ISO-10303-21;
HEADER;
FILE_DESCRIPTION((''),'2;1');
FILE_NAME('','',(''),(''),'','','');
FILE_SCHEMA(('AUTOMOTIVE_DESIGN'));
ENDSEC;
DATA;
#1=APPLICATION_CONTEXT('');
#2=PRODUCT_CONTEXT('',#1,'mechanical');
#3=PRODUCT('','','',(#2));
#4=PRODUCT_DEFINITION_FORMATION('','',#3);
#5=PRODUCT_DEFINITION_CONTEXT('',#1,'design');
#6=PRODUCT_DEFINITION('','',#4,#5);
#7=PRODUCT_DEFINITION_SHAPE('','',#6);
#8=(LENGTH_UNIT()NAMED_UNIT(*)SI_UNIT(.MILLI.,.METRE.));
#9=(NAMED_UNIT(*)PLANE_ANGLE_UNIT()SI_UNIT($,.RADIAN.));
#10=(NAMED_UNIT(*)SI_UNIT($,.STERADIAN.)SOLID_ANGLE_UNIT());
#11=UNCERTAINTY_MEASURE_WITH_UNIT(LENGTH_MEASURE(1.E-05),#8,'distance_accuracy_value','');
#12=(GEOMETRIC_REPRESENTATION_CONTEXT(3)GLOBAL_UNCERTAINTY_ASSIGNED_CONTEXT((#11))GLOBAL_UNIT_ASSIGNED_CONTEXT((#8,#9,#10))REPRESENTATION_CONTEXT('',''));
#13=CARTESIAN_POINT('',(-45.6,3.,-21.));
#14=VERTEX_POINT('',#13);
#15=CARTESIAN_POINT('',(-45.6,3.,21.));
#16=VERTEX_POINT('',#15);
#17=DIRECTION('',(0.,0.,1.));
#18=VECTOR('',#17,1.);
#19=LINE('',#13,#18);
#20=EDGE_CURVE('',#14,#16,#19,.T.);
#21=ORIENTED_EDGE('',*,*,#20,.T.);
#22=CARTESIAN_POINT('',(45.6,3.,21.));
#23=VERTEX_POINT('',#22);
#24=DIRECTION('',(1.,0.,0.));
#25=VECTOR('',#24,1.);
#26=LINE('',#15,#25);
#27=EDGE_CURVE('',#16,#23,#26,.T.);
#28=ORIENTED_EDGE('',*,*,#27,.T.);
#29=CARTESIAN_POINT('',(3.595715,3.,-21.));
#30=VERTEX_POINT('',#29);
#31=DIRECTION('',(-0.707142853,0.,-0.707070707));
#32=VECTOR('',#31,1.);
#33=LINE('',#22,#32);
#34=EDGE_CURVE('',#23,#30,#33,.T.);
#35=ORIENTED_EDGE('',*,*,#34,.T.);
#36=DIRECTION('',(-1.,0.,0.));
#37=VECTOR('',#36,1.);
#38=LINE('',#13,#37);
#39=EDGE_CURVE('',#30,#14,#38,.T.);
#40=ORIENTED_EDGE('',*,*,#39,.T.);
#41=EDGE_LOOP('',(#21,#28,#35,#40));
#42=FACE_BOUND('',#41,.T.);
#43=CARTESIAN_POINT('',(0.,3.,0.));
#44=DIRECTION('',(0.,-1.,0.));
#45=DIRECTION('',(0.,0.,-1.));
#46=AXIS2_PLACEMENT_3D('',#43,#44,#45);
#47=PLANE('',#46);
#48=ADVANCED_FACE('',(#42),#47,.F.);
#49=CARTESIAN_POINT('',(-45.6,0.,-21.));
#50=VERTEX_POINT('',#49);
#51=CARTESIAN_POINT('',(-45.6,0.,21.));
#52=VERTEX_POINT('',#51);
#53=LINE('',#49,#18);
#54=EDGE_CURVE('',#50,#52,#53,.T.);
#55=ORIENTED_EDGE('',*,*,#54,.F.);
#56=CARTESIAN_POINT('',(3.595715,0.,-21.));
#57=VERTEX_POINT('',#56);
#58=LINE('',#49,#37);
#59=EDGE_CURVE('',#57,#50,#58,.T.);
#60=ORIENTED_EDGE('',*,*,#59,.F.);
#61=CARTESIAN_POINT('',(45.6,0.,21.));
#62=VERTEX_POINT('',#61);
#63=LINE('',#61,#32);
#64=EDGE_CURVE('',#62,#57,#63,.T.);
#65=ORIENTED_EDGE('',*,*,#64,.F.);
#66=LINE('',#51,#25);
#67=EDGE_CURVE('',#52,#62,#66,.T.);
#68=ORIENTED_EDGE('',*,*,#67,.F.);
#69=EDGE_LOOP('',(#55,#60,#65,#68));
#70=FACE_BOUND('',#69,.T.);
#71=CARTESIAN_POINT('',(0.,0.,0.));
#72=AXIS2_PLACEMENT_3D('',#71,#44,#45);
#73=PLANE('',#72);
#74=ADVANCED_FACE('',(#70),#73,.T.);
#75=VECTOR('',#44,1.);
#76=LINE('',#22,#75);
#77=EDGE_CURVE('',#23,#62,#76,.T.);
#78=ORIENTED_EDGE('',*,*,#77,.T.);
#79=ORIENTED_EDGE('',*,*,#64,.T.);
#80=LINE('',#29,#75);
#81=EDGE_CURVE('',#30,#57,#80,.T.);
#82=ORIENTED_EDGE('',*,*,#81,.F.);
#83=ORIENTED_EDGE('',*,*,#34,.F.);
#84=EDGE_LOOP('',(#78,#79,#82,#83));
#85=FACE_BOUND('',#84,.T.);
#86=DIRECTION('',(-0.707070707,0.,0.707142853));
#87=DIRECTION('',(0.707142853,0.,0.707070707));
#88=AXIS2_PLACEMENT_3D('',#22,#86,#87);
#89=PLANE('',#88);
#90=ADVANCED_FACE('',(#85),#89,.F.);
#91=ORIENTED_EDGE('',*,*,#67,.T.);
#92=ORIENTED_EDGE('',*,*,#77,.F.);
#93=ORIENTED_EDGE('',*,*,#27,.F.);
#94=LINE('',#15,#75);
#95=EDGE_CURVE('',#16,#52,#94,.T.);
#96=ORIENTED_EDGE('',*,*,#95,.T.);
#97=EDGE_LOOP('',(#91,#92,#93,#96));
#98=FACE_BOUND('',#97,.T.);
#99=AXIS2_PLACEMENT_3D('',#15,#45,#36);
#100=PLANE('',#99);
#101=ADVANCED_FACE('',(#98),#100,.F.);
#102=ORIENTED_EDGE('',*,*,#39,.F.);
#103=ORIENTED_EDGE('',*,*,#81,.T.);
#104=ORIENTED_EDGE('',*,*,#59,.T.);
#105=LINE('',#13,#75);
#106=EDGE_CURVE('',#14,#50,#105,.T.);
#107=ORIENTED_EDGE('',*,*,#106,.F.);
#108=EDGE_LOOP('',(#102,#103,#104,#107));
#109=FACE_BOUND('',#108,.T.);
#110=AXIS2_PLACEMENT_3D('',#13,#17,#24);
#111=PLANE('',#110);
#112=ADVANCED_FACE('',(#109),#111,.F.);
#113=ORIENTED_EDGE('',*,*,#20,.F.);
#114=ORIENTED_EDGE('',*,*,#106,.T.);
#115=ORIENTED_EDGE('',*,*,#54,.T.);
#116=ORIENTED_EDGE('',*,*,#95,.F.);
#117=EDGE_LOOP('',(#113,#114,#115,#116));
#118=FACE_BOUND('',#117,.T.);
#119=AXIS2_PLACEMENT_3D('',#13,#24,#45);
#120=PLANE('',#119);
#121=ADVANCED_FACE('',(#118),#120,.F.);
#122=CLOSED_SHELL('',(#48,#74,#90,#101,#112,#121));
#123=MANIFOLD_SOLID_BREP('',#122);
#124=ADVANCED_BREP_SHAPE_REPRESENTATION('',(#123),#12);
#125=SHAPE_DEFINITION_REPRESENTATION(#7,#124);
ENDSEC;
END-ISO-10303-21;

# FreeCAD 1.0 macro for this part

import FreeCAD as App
import Part
import Sketcher
from FreeCAD import Vector
Q = App.Units.Quantity


def add_polygon(sketch, points):
    """Adds a closed chain of lines whose ends are joined by coincident constraints."""
    first, n = sketch.GeometryCount, len(points)
    for a, b in zip(points, points[1:] + points[:1]):
        sketch.addGeometry(Part.LineSegment(App.Vector(*a, 0), App.Vector(*b, 0)), False)
    for i in range(n):
        sketch.addConstraint(Sketcher.Constraint("Coincident", first + i, 2, first + (i + 1) % n, 1))

doc = App.newDocument("Part")
body = doc.addObject("PartDesign::Body", "Body")

sketch1 = doc.addObject("Sketcher::SketchObject", "Sketch")
body.addObject(sketch1)
sketch1.AttachmentSupport = (doc.XZ_Plane, [""])
sketch1.MapMode = "FlatFace"
add_polygon(sketch1, [(46, 21), (4, -21), (-46, -21), (-46, 21)])
sketch1.addConstraint(Sketcher.Constraint("Horizontal", 1))
sketch1.addConstraint(Sketcher.Constraint("Vertical", 2))
sketch1.addConstraint(Sketcher.Constraint("Horizontal", 3))
sketch1.addConstraint(Sketcher.Constraint("Symmetric", 1, 2, 3, 2, -1, 1))
sketch1.addConstraint(Sketcher.Constraint("DistanceY", 2, 1, 2, 2, Q("42 mm")))
sketch1.addConstraint(Sketcher.Constraint("DistanceX", 3, 1, 3, 2, Q("91.2 mm")))
sketch1.addConstraint(Sketcher.Constraint("Distance", 0, Q("59.4 mm")))
pad1 = doc.addObject("PartDesign::Pad", "Pad")
body.addObject(pad1)
pad1.Profile = sketch1
pad1.Length = 3
pad1.Reversed = True

doc.recompute()
